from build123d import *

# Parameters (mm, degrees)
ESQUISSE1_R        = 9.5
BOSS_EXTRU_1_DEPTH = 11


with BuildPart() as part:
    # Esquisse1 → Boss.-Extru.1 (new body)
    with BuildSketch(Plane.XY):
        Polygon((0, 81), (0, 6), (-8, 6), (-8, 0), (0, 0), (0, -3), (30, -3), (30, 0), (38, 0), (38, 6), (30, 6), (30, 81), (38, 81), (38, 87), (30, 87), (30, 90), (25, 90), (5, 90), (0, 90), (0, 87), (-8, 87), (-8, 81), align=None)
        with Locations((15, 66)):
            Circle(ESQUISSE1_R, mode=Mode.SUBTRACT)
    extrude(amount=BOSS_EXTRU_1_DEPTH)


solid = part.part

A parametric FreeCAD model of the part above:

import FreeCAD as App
import Part
import Sketcher


def add_polygon(sketch, points):
    """Adds a closed chain of lines whose ends are joined by coincident constraints."""
    first, n = sketch.GeometryCount, len(points)
    for a, b in zip(points, points[1:] + points[:1]):
        sketch.addGeometry(Part.LineSegment(App.Vector(*a, 0), App.Vector(*b, 0)), False)
    for i in range(n):
        sketch.addConstraint(Sketcher.Constraint("Coincident", first + i, 2, first + (i + 1) % n, 1))

doc = App.newDocument("Part")
body = doc.addObject("PartDesign::Body", "Body")

# Sketch on XY plane
sketch1 = body.newObject("Sketcher::SketchObject", "Sketch")
sketch1.AttachmentSupport = (doc.getObject("XY_Plane"), [""])
sketch1.MapMode = "FlatFace"
add_polygon(sketch1, [(0, 81), (0, 6), (-8, 6), (-8, 0), (0, 0), (0, -3), (30, -3), (30, 0), (38, 0), (38, 6), (30, 6), (30, 81), (38, 81), (38, 87), (30, 87), (30, 90), (0, 90), (0, 87), (-8, 87), (-8, 81)])  # lines 0-19
sketch1.addGeometry(Part.Circle(App.Vector(15, 66, 0), App.Vector(0, 0, 1), 9.5), False)  # 20
sketch1.addConstraint(Sketcher.Constraint("Vertical", 0))
sketch1.addConstraint(Sketcher.Constraint("Horizontal", 1))
sketch1.addConstraint(Sketcher.Constraint("Vertical", 2))
sketch1.addConstraint(Sketcher.Constraint("Horizontal", 3))
sketch1.addConstraint(Sketcher.Constraint("Vertical", 4))
sketch1.addConstraint(Sketcher.Constraint("Horizontal", 5))
sketch1.addConstraint(Sketcher.Constraint("Vertical", 6))
sketch1.addConstraint(Sketcher.Constraint("Horizontal", 7))
sketch1.addConstraint(Sketcher.Constraint("Vertical", 8))
sketch1.addConstraint(Sketcher.Constraint("Horizontal", 9))
sketch1.addConstraint(Sketcher.Constraint("Vertical", 10))
sketch1.addConstraint(Sketcher.Constraint("Horizontal", 11))
sketch1.addConstraint(Sketcher.Constraint("Vertical", 12))
sketch1.addConstraint(Sketcher.Constraint("Horizontal", 13))
sketch1.addConstraint(Sketcher.Constraint("Vertical", 14))
sketch1.addConstraint(Sketcher.Constraint("Horizontal", 15))
sketch1.addConstraint(Sketcher.Constraint("Vertical", 16))
sketch1.addConstraint(Sketcher.Constraint("Horizontal", 17))
sketch1.addConstraint(Sketcher.Constraint("Vertical", 18))
sketch1.addConstraint(Sketcher.Constraint("Horizontal", 19))
sketch1.addConstraint(Sketcher.Constraint("Coincident", 3, 2, -1, 1))
sketch1.addConstraint(Sketcher.Constraint("PointOnObject", 0, 2, -2))
sketch1.addConstraint(Sketcher.Constraint("PointOnObject", 6, 2, -1))
sketch1.addConstraint(Sketcher.Constraint("PointOnObject", 15, 2, -2))
sketch1.addConstraint(Sketcher.Constraint("Horizontal", 1, 2, 8, 2))
sketch1.addConstraint(Sketcher.Constraint("Horizontal", 13, 2, 16, 2))
sketch1.addConstraint(Sketcher.Constraint("Horizontal", 11, 2, 18, 2))
sketch1.addConstraint(Sketcher.Constraint("Vertical", 6, 2, 9, 2))
sketch1.addConstraint(Sketcher.Constraint("Vertical", 8, 2, 11, 2))
sketch1.addConstraint(Sketcher.Constraint("Vertical", 10, 2, 13, 2))
sketch1.addConstraint(Sketcher.Constraint("Vertical", 2, 2, 17, 2))
sketch1.addConstraint(Sketcher.Constraint("Equal", 3, 7))
sketch1.addConstraint(Sketcher.Constraint("Equal", 8, 12))
sketch1.addConstraint(Sketcher.Constraint("Equal", 6, 14))
sketch1.addConstraint(Sketcher.Constraint("Diameter", 20, 19.0))
sketch1.addConstraint(Sketcher.Constraint("DistanceX", 1, 2, 1, 1, 8.0))
sketch1.addConstraint(Sketcher.Constraint("DistanceX", 5, 1, 5, 2, 30.0))
sketch1.addConstraint(Sketcher.Constraint("DistanceY", 0, 2, 0, 1, 75.0))
sketch1.addConstraint(Sketcher.Constraint("DistanceY", 2, 2, 2, 1, 6.0))
sketch1.addConstraint(Sketcher.Constraint("DistanceY", 4, 2, 4, 1, 3.0))
sketch1.addConstraint(Sketcher.Constraint("DistanceX", -1, 1, 20, 3, 15.0))
sketch1.addConstraint(Sketcher.Constraint("DistanceY", -1, 1, 20, 3, 66.0))
pad1 = body.newObject("PartDesign::Pad", "Pad")
pad1.Profile = sketch1
pad1.Length = 11

doc.recompute()
